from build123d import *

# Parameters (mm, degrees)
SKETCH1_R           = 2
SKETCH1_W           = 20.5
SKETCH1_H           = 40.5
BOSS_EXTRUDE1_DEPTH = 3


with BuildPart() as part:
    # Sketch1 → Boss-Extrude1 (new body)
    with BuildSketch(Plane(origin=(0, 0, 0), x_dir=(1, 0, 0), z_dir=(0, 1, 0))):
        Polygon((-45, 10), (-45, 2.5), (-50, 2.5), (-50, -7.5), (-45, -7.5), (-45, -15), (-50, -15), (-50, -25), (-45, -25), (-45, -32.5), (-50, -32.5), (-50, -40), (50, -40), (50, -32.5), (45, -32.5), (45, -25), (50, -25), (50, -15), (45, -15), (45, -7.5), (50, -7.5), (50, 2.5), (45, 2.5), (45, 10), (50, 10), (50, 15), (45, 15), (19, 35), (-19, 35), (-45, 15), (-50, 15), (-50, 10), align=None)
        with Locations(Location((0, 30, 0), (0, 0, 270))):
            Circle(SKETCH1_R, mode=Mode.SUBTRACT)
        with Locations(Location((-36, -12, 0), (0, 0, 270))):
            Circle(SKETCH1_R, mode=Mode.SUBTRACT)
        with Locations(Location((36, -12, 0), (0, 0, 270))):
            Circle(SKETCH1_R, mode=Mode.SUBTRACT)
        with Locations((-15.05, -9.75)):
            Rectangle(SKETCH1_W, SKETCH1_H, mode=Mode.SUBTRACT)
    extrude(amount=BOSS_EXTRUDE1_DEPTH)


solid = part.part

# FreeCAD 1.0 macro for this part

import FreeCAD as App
import Part
import Sketcher

doc = App.newDocument("Part")
body = doc.addObject("PartDesign::Body", "Body")

sketch1 = body.newObject("Sketcher::SketchObject", "Sketch")
sketch1.AttachmentSupport = (doc.getObject("XZ_Plane"), [""])
sketch1.MapMode = "FlatFace"
sketch1.addGeometry([
    Part.LineSegment(App.Vector(-45, -10, 0), App.Vector(-45, -2.5, 0)),
    Part.LineSegment(App.Vector(-45, -2.5, 0), App.Vector(-50, -2.5, 0)),
    Part.LineSegment(App.Vector(-50, -2.5, 0), App.Vector(-50, 7.5, 0)),
    Part.LineSegment(App.Vector(-50, 7.5, 0), App.Vector(-45, 7.5, 0)),
    Part.LineSegment(App.Vector(-45, 7.5, 0), App.Vector(-45, 15, 0)),
    Part.LineSegment(App.Vector(-45, 15, 0), App.Vector(-50, 15, 0)),
    Part.LineSegment(App.Vector(-50, 15, 0), App.Vector(-50, 25, 0)),
    Part.LineSegment(App.Vector(-50, 25, 0), App.Vector(-45, 25, 0)),
    Part.LineSegment(App.Vector(-45, 25, 0), App.Vector(-45, 32.5, 0)),
    Part.LineSegment(App.Vector(-45, 32.5, 0), App.Vector(-50, 32.5, 0)),
    Part.LineSegment(App.Vector(-50, 32.5, 0), App.Vector(-50, 40, 0)),
    Part.LineSegment(App.Vector(-50, 40, 0), App.Vector(50, 40, 0)),
    Part.LineSegment(App.Vector(50, 40, 0), App.Vector(50, 32.5, 0)),
    Part.LineSegment(App.Vector(50, 32.5, 0), App.Vector(45, 32.5, 0)),
    Part.LineSegment(App.Vector(45, 32.5, 0), App.Vector(45, 25, 0)),
    Part.LineSegment(App.Vector(45, 25, 0), App.Vector(50, 25, 0)),
    Part.LineSegment(App.Vector(50, 25, 0), App.Vector(50, 15, 0)),
    Part.LineSegment(App.Vector(50, 15, 0), App.Vector(45, 15, 0)),
    Part.LineSegment(App.Vector(45, 15, 0), App.Vector(45, 7.5, 0)),
    Part.LineSegment(App.Vector(45, 7.5, 0), App.Vector(50, 7.5, 0)),
    Part.LineSegment(App.Vector(50, 7.5, 0), App.Vector(50, -2.5, 0)),
    Part.LineSegment(App.Vector(50, -2.5, 0), App.Vector(45, -2.5, 0)),
    Part.LineSegment(App.Vector(45, -2.5, 0), App.Vector(45, -10, 0)),
    Part.LineSegment(App.Vector(45, -10, 0), App.Vector(50, -10, 0)),
    Part.LineSegment(App.Vector(50, -10, 0), App.Vector(50, -15, 0)),
    Part.LineSegment(App.Vector(50, -15, 0), App.Vector(45, -15, 0)),
    Part.LineSegment(App.Vector(45, -15, 0), App.Vector(19, -35, 0)),
    Part.LineSegment(App.Vector(19, -35, 0), App.Vector(-19, -35, 0)),
    Part.LineSegment(App.Vector(-19, -35, 0), App.Vector(-45, -15, 0)),
    Part.LineSegment(App.Vector(-45, -15, 0), App.Vector(-50, -15, 0)),
    Part.LineSegment(App.Vector(-50, -15, 0), App.Vector(-50, -10, 0)),
    Part.LineSegment(App.Vector(-50, -10, 0), App.Vector(-45, -10, 0)),
    Part.Circle(App.Vector(-36, 12, 0), App.Vector(0, 0, 1), 2),
    Part.LineSegment(App.Vector(-4.8, 30, 0), App.Vector(-25.3, 30, 0)),
    Part.LineSegment(App.Vector(-25.3, 30, 0), App.Vector(-25.3, -10.5, 0)),
    Part.LineSegment(App.Vector(-25.3, -10.5, 0), App.Vector(-4.8, -10.5, 0)),
    Part.LineSegment(App.Vector(-4.8, -10.5, 0), App.Vector(-4.8, 30, 0)),
    Part.Circle(App.Vector(36, 12, 0), App.Vector(0, 0, 1), 2),
    Part.Circle(App.Vector(0, -30, 0), App.Vector(0, 0, 1), 2),
], False)
sketch1.addConstraint([
    Sketcher.Constraint("Coincident", 0, 2, 1, 1),
    Sketcher.Constraint("Coincident", 1, 2, 2, 1),
    Sketcher.Constraint("Coincident", 2, 2, 3, 1),
    Sketcher.Constraint("Coincident", 3, 2, 4, 1),
    Sketcher.Constraint("Coincident", 4, 2, 5, 1),
    Sketcher.Constraint("Coincident", 5, 2, 6, 1),
    Sketcher.Constraint("Coincident", 6, 2, 7, 1),
    Sketcher.Constraint("Coincident", 7, 2, 8, 1),
    Sketcher.Constraint("Coincident", 8, 2, 9, 1),
    Sketcher.Constraint("Coincident", 9, 2, 10, 1),
    Sketcher.Constraint("Coincident", 10, 2, 11, 1),
    Sketcher.Constraint("Coincident", 11, 2, 12, 1),
    Sketcher.Constraint("Coincident", 12, 2, 13, 1),
    Sketcher.Constraint("Coincident", 13, 2, 14, 1),
    Sketcher.Constraint("Coincident", 14, 2, 15, 1),
    Sketcher.Constraint("Coincident", 15, 2, 16, 1),
    Sketcher.Constraint("Coincident", 16, 2, 17, 1),
    Sketcher.Constraint("Coincident", 17, 2, 18, 1),
    Sketcher.Constraint("Coincident", 18, 2, 19, 1),
    Sketcher.Constraint("Coincident", 19, 2, 20, 1),
    Sketcher.Constraint("Coincident", 20, 2, 21, 1),
    Sketcher.Constraint("Coincident", 21, 2, 22, 1),
    Sketcher.Constraint("Coincident", 22, 2, 23, 1),
    Sketcher.Constraint("Coincident", 23, 2, 24, 1),
    Sketcher.Constraint("Coincident", 24, 2, 25, 1),
    Sketcher.Constraint("Coincident", 25, 2, 26, 1),
    Sketcher.Constraint("Coincident", 26, 2, 27, 1),
    Sketcher.Constraint("Coincident", 27, 2, 28, 1),
    Sketcher.Constraint("Coincident", 28, 2, 29, 1),
    Sketcher.Constraint("Coincident", 29, 2, 30, 1),
    Sketcher.Constraint("Coincident", 30, 2, 31, 1),
    Sketcher.Constraint("Coincident", 31, 2, 0, 1),
    Sketcher.Constraint("Coincident", 33, 2, 34, 1),
    Sketcher.Constraint("Coincident", 34, 2, 35, 1),
    Sketcher.Constraint("Coincident", 35, 2, 36, 1),
    Sketcher.Constraint("Coincident", 36, 2, 33, 1),
    Sketcher.Constraint("Vertical", 0),
    Sketcher.Constraint("Horizontal", 1),
    Sketcher.Constraint("Vertical", 2),
    Sketcher.Constraint("Horizontal", 3),
    Sketcher.Constraint("Vertical", 4),
    Sketcher.Constraint("Horizontal", 5),
    Sketcher.Constraint("Vertical", 6),
    Sketcher.Constraint("Horizontal", 7),
    Sketcher.Constraint("Vertical", 8),
    Sketcher.Constraint("Horizontal", 9),
    Sketcher.Constraint("Vertical", 10),
    Sketcher.Constraint("Horizontal", 11),
    Sketcher.Constraint("Vertical", 12),
    Sketcher.Constraint("Horizontal", 13),
    Sketcher.Constraint("Vertical", 14),
    Sketcher.Constraint("Horizontal", 15),
    Sketcher.Constraint("Vertical", 16),
    Sketcher.Constraint("Horizontal", 17),
    Sketcher.Constraint("Vertical", 18),
    Sketcher.Constraint("Horizontal", 19),
    Sketcher.Constraint("Vertical", 20),
    Sketcher.Constraint("Horizontal", 21),
    Sketcher.Constraint("Vertical", 22),
    Sketcher.Constraint("Horizontal", 23),
    Sketcher.Constraint("Vertical", 24),
    Sketcher.Constraint("Horizontal", 25),
    Sketcher.Constraint("Horizontal", 27),
    Sketcher.Constraint("Horizontal", 29),
    Sketcher.Constraint("Vertical", 30),
    Sketcher.Constraint("Horizontal", 31),
    Sketcher.Constraint("Horizontal", 33),
    Sketcher.Constraint("Vertical", 34),
    Sketcher.Constraint("Horizontal", 35),
    Sketcher.Constraint("Vertical", 36),
    Sketcher.Constraint("Equal", 32, 37),
    Sketcher.Constraint("Equal", 37, 38),
    Sketcher.Constraint("Symmetric", 5, 2, 24, 2, -1, 1),
    Sketcher.Constraint("Symmetric", 17, 2, 28, 2, -1, 1),
    Sketcher.Constraint("Symmetric", 32, 3, 37, 3, -2),
    Sketcher.Constraint("Symmetric", 9, 2, 12, 2, -2),
    Sketcher.Constraint("Symmetric", 7, 2, 14, 2, -2),
    Sketcher.Constraint("Symmetric", 5, 2, 16, 2, -2),
    Sketcher.Constraint("Symmetric", 3, 2, 18, 2, -2),
    Sketcher.Constraint("Symmetric", 1, 2, 20, 2, -2),
    Sketcher.Constraint("Symmetric", 23, 2, 30, 2, -2),
    Sketcher.Constraint("PointOnObject", 38, 3, -2),
    Sketcher.Constraint("Vertical", 0, 2, 3, 2),
    Sketcher.Constraint("Vertical", 2, 2, 5, 2),
    Sketcher.Constraint("Vertical", 4, 2, 7, 2),
    Sketcher.Constraint("Vertical", 6, 2, 9, 2),
    Sketcher.Constraint("Vertical", 18, 2, 21, 2),
    Sketcher.Constraint("Vertical", 22, 2, 25, 2),
    Sketcher.Constraint("Equal", 0, 4),
    Sketcher.Constraint("Equal", 2, 6),
    Sketcher.Constraint("Equal", 4, 8),
    Sketcher.Constraint("Equal", 8, 10),
    Sketcher.Constraint("Equal", 31, 24),
    Sketcher.Constraint("Equal", 26, 28),
    Sketcher.Constraint("Diameter", 32, 4.0),
    Sketcher.Constraint("DistanceX", 1, 2, 1, 1, 5.0),
    Sketcher.Constraint("DistanceX", 11, 1, 11, 2, 100.0),
    Sketcher.Constraint("DistanceX", 27, 2, 27, 1, 38.0),
    Sketcher.Constraint("DistanceY", 2, 1, 2, 2, 10.0),
    Sketcher.Constraint("DistanceX", 33, 2, 33, 1, 20.5),
    Sketcher.Constraint("DistanceY", 0, 1, 0, 2, 7.5),
    Sketcher.Constraint("DistanceY", 34, 2, 34, 1, 40.5),
    Sketcher.Constraint("DistanceX", 32, 3, -1, 1, 36.0),
    Sketcher.Constraint("DistanceY", -1, 1, 32, 3, 12.0),
    Sketcher.Constraint("DistanceY", 38, 3, -1, 1, 30.0),
    Sketcher.Constraint("DistanceY", 26, 2, -1, 1, 35.0),
    Sketcher.Constraint("DistanceY", -1, 1, 33, 2, 30.0),
    Sketcher.Constraint("DistanceX", 33, 2, -1, 1, 25.3),
])
pad1 = body.newObject("PartDesign::Pad", "Pad")
pad1.Profile = sketch1
pad1.Length = 3
pad1.Reversed = True

doc.recompute()
